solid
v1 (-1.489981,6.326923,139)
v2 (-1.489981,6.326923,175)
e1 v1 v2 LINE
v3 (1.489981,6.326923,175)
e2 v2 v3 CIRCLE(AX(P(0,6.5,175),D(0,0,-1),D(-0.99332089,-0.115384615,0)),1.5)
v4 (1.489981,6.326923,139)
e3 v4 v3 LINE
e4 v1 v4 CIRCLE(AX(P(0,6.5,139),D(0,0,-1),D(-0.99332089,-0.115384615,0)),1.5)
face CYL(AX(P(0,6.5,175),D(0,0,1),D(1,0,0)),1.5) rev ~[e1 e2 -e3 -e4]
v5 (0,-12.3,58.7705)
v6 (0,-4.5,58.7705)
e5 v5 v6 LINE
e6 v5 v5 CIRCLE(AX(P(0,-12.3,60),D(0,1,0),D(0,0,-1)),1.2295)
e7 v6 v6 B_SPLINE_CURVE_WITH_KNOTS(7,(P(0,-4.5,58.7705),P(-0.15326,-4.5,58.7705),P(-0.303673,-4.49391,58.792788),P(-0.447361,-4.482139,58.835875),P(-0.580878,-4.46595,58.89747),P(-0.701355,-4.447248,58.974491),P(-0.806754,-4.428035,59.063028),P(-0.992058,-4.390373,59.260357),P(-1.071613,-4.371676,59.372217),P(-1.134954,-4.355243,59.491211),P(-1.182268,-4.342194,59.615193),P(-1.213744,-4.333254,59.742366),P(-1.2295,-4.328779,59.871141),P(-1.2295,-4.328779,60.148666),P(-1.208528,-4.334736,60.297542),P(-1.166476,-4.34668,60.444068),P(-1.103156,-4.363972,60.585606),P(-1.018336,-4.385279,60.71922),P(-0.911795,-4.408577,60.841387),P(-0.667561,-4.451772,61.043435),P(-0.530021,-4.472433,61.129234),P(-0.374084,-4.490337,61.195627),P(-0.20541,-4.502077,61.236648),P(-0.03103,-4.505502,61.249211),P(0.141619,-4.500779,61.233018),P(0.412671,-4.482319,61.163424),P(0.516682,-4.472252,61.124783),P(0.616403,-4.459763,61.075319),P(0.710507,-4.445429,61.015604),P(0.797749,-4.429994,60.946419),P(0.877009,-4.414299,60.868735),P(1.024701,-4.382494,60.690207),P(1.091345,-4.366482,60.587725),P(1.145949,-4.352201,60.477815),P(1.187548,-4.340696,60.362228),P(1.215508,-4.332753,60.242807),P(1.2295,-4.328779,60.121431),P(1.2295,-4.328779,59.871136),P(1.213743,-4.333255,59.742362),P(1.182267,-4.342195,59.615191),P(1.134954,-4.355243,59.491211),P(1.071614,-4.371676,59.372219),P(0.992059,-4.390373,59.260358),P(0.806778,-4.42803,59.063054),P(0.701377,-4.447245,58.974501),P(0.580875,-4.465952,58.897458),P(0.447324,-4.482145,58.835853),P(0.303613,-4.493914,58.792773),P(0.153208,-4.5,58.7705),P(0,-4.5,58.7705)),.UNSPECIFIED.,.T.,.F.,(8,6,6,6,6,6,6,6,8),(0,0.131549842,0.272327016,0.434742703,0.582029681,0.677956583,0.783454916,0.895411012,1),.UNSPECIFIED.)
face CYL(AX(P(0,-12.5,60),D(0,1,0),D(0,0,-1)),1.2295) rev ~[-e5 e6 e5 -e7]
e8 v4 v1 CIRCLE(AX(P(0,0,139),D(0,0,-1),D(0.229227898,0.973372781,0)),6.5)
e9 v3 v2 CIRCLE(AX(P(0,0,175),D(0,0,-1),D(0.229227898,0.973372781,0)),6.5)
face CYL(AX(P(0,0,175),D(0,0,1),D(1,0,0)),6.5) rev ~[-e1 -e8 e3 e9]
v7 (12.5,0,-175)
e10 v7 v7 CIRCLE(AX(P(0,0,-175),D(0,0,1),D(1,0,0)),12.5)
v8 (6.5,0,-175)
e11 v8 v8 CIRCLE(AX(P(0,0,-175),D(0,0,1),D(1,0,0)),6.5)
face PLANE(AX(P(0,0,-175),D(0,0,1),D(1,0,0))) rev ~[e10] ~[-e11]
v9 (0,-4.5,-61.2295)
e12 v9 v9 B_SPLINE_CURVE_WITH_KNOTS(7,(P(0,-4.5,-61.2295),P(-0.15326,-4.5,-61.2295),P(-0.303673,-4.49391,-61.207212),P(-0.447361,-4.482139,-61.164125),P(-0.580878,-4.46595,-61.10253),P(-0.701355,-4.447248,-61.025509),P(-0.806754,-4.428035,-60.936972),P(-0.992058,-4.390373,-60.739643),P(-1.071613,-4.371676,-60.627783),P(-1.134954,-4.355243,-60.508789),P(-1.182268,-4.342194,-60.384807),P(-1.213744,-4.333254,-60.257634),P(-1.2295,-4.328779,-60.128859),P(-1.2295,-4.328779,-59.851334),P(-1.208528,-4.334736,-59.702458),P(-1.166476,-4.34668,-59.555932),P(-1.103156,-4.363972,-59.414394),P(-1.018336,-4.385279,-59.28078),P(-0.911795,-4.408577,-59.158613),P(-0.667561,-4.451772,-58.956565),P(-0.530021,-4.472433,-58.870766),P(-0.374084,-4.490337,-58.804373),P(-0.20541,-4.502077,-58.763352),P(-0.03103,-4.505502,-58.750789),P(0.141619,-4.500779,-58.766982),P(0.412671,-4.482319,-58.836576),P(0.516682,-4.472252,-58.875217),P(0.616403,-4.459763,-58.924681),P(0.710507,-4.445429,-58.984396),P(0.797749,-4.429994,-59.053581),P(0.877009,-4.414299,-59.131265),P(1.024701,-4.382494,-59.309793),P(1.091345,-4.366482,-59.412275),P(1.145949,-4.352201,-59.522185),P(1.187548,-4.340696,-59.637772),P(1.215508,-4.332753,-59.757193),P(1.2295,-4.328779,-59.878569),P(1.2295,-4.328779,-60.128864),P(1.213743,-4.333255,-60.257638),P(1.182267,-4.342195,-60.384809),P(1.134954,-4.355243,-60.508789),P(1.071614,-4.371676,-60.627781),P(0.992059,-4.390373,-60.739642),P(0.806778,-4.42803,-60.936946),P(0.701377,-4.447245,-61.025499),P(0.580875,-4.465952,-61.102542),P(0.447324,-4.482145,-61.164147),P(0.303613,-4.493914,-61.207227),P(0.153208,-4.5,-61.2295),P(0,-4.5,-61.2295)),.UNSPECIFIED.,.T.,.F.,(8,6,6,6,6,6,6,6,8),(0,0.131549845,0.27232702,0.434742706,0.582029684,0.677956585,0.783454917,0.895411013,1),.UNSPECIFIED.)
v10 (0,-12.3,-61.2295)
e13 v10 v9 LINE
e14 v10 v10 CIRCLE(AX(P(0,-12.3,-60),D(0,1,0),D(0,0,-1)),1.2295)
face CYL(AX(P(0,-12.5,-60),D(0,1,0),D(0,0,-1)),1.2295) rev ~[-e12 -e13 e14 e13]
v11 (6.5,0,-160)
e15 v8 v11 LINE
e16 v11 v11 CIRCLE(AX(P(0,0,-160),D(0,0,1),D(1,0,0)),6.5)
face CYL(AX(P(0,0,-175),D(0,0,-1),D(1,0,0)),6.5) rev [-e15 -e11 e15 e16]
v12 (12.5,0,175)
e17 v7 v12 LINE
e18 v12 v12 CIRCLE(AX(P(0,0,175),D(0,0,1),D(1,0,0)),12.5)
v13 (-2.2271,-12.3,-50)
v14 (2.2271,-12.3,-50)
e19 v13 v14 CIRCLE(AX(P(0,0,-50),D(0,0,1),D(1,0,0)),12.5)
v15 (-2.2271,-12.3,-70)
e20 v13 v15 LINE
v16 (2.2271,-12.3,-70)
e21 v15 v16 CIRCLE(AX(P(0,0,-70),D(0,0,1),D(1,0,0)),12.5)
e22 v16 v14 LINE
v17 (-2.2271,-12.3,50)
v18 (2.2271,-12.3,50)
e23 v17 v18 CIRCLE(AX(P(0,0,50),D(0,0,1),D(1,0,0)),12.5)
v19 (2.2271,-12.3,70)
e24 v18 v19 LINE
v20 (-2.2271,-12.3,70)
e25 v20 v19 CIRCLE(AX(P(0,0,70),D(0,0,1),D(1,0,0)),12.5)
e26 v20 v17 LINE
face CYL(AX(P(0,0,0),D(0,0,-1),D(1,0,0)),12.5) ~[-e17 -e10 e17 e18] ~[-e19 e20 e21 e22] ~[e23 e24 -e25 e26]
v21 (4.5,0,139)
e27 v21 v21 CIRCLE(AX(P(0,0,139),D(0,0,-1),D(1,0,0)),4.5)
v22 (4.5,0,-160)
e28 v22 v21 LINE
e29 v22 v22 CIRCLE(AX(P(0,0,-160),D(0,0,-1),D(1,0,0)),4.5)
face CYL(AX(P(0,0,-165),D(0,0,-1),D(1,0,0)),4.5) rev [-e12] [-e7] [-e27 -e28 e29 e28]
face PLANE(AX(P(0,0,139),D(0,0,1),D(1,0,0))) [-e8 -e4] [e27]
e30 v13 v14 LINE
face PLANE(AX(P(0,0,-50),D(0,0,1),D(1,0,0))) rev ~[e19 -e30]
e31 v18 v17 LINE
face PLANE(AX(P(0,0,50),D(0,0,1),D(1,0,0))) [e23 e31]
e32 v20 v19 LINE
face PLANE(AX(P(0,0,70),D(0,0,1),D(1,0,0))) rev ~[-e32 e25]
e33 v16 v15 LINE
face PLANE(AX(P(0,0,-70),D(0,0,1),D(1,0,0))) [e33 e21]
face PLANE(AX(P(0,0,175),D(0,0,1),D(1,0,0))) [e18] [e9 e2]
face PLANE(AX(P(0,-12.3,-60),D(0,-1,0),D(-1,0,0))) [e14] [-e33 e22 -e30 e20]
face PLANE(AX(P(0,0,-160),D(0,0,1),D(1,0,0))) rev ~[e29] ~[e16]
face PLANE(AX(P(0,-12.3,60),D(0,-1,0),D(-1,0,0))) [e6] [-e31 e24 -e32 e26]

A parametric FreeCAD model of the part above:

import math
import FreeCAD as App
import Part
import Sketcher

V = App.Vector

doc = App.newDocument("Part")
body = doc.addObject("PartDesign::Body", "Body")

# Sketch on XY plane
sketch1 = doc.addObject("Sketcher::SketchObject", "Sketch")
body.addObject(sketch1)
sketch1.AttachmentSupport = (doc.XY_Plane, [""])
sketch1.MapMode = "FlatFace"
sketch1.addGeometry(Part.Circle(V(0, 0, 0), V(0, 0, 1), 12), False)
sketch1.addConstraint([
    Sketcher.Constraint("Coincident", 0, 3, -1, 1),
    Sketcher.Constraint("Diameter", 0, 25.0),
])
pad1 = doc.addObject("PartDesign::Pad", "Pad")
body.addObject(pad1)
pad1.Profile = sketch1
pad1.Length = 350
pad1.Midplane = True

# Sketch on XY plane
sketch2 = doc.addObject("Sketcher::SketchObject", "Sketch001")
body.addObject(sketch2)
sketch2.AttachmentSupport = (doc.XY_Plane, [""])
sketch2.MapMode = "FlatFace"
sketch2.AttachmentOffset = App.Placement(V(0, 0, -165), App.Rotation())
sketch2.addGeometry(Part.Circle(V(0, 0, 0), V(0, 0, 1), 4.5), False)
sketch2.addConstraint([
    Sketcher.Constraint("Coincident", 0, 3, -1, 1),
    Sketcher.Constraint("Diameter", 0, 9.0),
])
pocket1 = doc.addObject("PartDesign::Pocket", "Pocket")
body.addObject(pocket1)
pocket1.Profile = sketch2
pocket1.Length = 350
pocket1.Reversed = True

# Sketch on XZ plane
sketch3 = doc.addObject("Sketcher::SketchObject", "Sketch002")
body.addObject(sketch3)
sketch3.AttachmentSupport = (doc.XZ_Plane, [""])
sketch3.MapMode = "FlatFace"
sketch3.AttachmentOffset = App.Placement(V(0, 0, 12.5), App.Rotation())
sketch3.addGeometry([
    Part.Circle(V(0, 60, 0), V(0, 0, 1), 1.2),
    Part.Circle(V(0, -60, 0), V(0, 0, 1), 1.2),
], False)
sketch3.addConstraint([
    Sketcher.Constraint("Equal", 0, 1),
    Sketcher.Constraint("Symmetric", 0, 3, 1, 3, -1, 1),
    Sketcher.Constraint("PointOnObject", 0, 3, -2),
    Sketcher.Constraint("Diameter", 0, 2.459),
    Sketcher.Constraint("DistanceY", -1, 1, 0, 3, 60.0),
])
doc.recompute()
hole = doc.addObject("PartDesign::Hole", "Hole")
body.addObject(hole)
hole.Profile = sketch3
hole.ThreadType = "None"
hole.Diameter = 2.459
hole.DepthType = "Dimension"
hole.Depth = 8.8
hole.DrillPoint = "Angled"
hole.DrillPointAngle = 118

# Sketch on XY plane
sketch4 = doc.addObject("Sketcher::SketchObject", "Sketch003")
body.addObject(sketch4)
sketch4.AttachmentSupport = (doc.XY_Plane, [""])
sketch4.MapMode = "FlatFace"
sketch4.AttachmentOffset = App.Placement(V(0, 0, 60), App.Rotation())
sketch4.addGeometry([
    Part.ArcOfCircle(Part.Circle(V(0, 0, 0), V(0, 0, 1), 12.5), math.radians(-100), math.radians(-80)),
    Part.LineSegment(V(-2.2, -12.3, 0), V(2.2, -12.3, 0)),
], False)
sketch4.addConstraint([
    Sketcher.Constraint("Coincident", 0, 1, 1, 1),
    Sketcher.Constraint("Coincident", 1, 2, 0, 2),
    Sketcher.Constraint("Horizontal", 1),
    Sketcher.Constraint("Coincident", 0, 3, -1, 1),
    Sketcher.Constraint("Radius", 0, 12.5),
    Sketcher.Constraint("DistanceY", 0, 1, -1, 1, 12.3),
])
pocket2 = doc.addObject("PartDesign::Pocket", "Pocket001")
body.addObject(pocket2)
pocket2.Profile = sketch4
pocket2.Length = 20
pocket2.Midplane = True

# Sketch on XY plane
sketch5 = doc.addObject("Sketcher::SketchObject", "Sketch004")
body.addObject(sketch5)
sketch5.AttachmentSupport = (doc.XY_Plane, [""])
sketch5.MapMode = "FlatFace"
sketch5.AttachmentOffset = App.Placement(V(0, 0, -60), App.Rotation())
sketch5.addGeometry([
    Part.ArcOfCircle(Part.Circle(V(0, 0, 0), V(0, 0, 1), 12.5), math.radians(-100), math.radians(-80)),
    Part.LineSegment(V(-2.2, -12.3, 0), V(2.2, -12.3, 0)),
], False)
sketch5.addConstraint([
    Sketcher.Constraint("Coincident", 0, 1, 1, 1),
    Sketcher.Constraint("Coincident", 1, 2, 0, 2),
    Sketcher.Constraint("Horizontal", 1),
    Sketcher.Constraint("Coincident", 0, 3, -1, 1),
    Sketcher.Constraint("Radius", 0, 12.5),
    Sketcher.Constraint("DistanceY", 0, 1, -1, 1, 12.3),
])
pocket3 = doc.addObject("PartDesign::Pocket", "Pocket002")
body.addObject(pocket3)
pocket3.Profile = sketch5
pocket3.Length = 20
pocket3.Midplane = True

# Sketch on XY plane
sketch6 = doc.addObject("Sketcher::SketchObject", "Sketch005")
body.addObject(sketch6)
sketch6.AttachmentSupport = (doc.XY_Plane, [""])
sketch6.MapMode = "FlatFace"
sketch6.AttachmentOffset = App.Placement(V(0, 0, -175), App.Rotation())
sketch6.addGeometry(Part.Circle(V(0, 0, 0), V(0, 0, 1), 6), False)
sketch6.addConstraint([
    Sketcher.Constraint("Coincident", 0, 3, -1, 1),
    Sketcher.Constraint("Diameter", 0, 13.0),
])
pocket4 = doc.addObject("PartDesign::Pocket", "Pocket003")
body.addObject(pocket4)
pocket4.Profile = sketch6
pocket4.Length = 15
pocket4.Reversed = True

# Sketch on XY plane
sketch7 = doc.addObject("Sketcher::SketchObject", "Sketch006")
body.addObject(sketch7)
sketch7.AttachmentSupport = (doc.XY_Plane, [""])
sketch7.MapMode = "FlatFace"
sketch7.AttachmentOffset = App.Placement(V(0, 0, 175), App.Rotation())
sketch7.addGeometry(Part.Circle(V(0, 0, 0), V(0, 0, 1), 6), False)
sketch7.addConstraint([
    Sketcher.Constraint("Coincident", 0, 3, -1, 1),
    Sketcher.Constraint("Diameter", 0, 13.0),
])
pocket5 = doc.addObject("PartDesign::Pocket", "Pocket004")
body.addObject(pocket5)
pocket5.Profile = sketch7
pocket5.Length = 36

# Sketch on XY plane
sketch8 = doc.addObject("Sketcher::SketchObject", "Sketch007")
body.addObject(sketch8)
sketch8.AttachmentSupport = (doc.XY_Plane, [""])
sketch8.MapMode = "FlatFace"
sketch8.AttachmentOffset = App.Placement(V(0, 0, 175), App.Rotation())
sketch8.addGeometry(Part.Circle(V(0, 6.5, 0), V(0, 0, 1), 1.5), False)
sketch8.addConstraint([
    Sketcher.Constraint("PointOnObject", 0, 3, -2),
    Sketcher.Constraint("Diameter", 0, 3.0),
    Sketcher.Constraint("DistanceY", -1, 1, 0, 3, 6.5),
])
pocket6 = doc.addObject("PartDesign::Pocket", "Pocket005")
body.addObject(pocket6)
pocket6.Profile = sketch8
pocket6.Length = 36

doc.recompute()
